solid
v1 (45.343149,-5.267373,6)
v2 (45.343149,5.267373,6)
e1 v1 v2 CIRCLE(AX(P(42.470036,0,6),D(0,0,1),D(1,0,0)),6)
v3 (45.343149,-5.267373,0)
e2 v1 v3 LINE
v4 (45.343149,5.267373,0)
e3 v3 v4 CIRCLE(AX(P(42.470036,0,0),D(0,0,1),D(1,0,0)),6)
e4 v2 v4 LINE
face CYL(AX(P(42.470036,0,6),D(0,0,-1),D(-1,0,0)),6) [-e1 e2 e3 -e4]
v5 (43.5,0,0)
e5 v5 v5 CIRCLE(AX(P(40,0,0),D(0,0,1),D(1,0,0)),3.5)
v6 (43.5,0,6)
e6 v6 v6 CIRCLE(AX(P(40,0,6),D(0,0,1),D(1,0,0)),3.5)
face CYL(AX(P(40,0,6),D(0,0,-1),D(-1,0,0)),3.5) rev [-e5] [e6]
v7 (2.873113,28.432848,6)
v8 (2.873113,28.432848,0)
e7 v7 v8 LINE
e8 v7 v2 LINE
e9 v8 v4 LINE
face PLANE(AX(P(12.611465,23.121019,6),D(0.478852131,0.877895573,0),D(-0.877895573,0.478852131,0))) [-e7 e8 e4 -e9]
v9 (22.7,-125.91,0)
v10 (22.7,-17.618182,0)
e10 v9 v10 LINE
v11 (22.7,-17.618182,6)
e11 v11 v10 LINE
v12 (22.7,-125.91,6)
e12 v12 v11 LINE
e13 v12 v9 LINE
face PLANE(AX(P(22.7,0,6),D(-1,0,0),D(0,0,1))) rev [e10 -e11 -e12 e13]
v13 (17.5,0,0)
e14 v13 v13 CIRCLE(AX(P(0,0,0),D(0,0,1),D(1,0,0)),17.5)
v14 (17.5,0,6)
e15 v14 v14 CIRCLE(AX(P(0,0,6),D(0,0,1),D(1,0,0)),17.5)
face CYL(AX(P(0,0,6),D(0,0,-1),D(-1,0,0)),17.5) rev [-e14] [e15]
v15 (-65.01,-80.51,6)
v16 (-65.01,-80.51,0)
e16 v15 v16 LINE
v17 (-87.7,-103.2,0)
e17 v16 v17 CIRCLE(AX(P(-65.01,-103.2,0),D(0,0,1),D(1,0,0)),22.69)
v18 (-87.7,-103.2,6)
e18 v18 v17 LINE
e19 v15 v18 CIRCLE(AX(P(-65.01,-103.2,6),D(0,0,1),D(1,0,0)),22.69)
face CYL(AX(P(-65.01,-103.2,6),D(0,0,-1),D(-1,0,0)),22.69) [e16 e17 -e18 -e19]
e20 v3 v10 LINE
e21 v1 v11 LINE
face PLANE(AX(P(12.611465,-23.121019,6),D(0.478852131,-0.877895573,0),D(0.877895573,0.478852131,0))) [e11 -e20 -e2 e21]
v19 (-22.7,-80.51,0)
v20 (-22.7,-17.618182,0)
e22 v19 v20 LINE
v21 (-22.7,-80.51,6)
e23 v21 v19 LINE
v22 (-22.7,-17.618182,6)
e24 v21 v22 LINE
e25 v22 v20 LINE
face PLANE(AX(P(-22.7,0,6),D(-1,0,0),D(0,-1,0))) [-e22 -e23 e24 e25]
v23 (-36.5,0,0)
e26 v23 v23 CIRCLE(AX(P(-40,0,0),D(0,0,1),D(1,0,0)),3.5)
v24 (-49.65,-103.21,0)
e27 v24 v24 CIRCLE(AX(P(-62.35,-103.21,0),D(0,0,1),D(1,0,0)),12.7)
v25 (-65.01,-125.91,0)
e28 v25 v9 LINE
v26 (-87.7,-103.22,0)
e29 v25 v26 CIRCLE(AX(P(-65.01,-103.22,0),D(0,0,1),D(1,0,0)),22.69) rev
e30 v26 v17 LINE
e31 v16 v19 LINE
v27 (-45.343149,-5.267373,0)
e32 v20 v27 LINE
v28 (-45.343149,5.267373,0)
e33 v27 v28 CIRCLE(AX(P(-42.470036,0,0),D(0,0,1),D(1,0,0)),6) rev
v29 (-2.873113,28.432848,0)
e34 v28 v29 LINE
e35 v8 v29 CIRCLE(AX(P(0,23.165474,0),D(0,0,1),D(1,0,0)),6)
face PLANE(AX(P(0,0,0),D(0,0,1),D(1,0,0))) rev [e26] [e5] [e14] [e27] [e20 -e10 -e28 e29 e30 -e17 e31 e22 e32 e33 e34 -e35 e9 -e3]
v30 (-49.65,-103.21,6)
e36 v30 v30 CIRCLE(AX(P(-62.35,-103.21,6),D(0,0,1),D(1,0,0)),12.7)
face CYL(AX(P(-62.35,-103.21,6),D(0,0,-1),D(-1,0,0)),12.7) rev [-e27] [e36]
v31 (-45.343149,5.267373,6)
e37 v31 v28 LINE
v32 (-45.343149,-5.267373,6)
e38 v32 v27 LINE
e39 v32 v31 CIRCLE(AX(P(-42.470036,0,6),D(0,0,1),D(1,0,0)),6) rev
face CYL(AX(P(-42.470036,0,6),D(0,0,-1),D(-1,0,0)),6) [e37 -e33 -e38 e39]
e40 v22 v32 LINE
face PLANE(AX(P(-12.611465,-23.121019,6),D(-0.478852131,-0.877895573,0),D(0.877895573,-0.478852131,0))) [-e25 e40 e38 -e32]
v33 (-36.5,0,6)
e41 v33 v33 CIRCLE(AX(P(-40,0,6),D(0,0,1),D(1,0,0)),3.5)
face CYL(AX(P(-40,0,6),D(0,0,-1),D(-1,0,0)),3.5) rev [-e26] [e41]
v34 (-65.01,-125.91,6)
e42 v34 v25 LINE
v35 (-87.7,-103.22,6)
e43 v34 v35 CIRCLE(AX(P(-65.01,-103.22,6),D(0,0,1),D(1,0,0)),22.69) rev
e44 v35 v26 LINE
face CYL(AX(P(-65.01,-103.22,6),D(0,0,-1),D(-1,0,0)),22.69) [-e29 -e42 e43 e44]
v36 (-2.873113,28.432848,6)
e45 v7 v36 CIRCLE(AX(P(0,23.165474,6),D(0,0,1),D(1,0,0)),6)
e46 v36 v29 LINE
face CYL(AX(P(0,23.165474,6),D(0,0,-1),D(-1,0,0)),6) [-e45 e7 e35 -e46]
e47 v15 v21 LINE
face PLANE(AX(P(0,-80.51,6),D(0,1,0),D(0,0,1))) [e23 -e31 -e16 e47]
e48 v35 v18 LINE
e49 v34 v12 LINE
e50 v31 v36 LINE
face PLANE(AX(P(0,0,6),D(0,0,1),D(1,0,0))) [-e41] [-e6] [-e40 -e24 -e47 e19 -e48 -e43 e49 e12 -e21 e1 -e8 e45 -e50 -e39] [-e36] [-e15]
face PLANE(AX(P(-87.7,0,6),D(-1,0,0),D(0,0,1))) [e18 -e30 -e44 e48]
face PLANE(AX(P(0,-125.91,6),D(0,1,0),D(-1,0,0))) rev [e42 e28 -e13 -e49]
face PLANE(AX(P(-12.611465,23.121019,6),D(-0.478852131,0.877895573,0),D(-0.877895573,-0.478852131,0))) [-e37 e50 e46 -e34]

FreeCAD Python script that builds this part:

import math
import FreeCAD as App
import Part
import Sketcher

doc = App.newDocument("Part")
body = doc.addObject("PartDesign::Body", "Body")

sketch1 = body.newObject("Sketcher::SketchObject", "Sketch")
sketch1.AttachmentSupport = (doc.getObject("XY_Plane"), [""])
sketch1.MapMode = "FlatFace"
sketch1.addGeometry([
    Part.LineSegment(App.Vector(-45.343149, -5.267373, 0), App.Vector(-22.7, -17.618182, 0)),
    Part.LineSegment(App.Vector(-22.7, -17.618182, 0), App.Vector(-22.7, -80.51, 0)),
    Part.LineSegment(App.Vector(-22.7, -80.51, 0), App.Vector(-65.01, -80.51, 0)),
    Part.ArcOfCircle(Part.Circle(App.Vector(-65.01, -103.2, 0), App.Vector(0, 0, 1), 22.69), math.radians(90), math.radians(180)),
    Part.LineSegment(App.Vector(-87.7, -103.2, 0), App.Vector(-87.7, -103.22, 0)),
    Part.ArcOfCircle(Part.Circle(App.Vector(-65.01, -103.22, 0), App.Vector(0, 0, 1), 22.69), math.radians(180), math.radians(270)),
    Part.LineSegment(App.Vector(-65.01, -125.91, 0), App.Vector(22.7, -125.91, 0)),
    Part.LineSegment(App.Vector(22.7, -125.91, 0), App.Vector(22.7, -17.618182, 0)),
    Part.LineSegment(App.Vector(22.7, -17.618182, 0), App.Vector(45.343149, -5.267373, 0)),
    Part.ArcOfCircle(Part.Circle(App.Vector(42.470036, 0, 0), App.Vector(0, 0, 1), 6), math.radians(-61.38954), math.radians(0)),
    Part.ArcOfCircle(Part.Circle(App.Vector(42.470036, 0, 0), App.Vector(0, 0, 1), 6), math.radians(0), math.radians(61.38954)),
    Part.LineSegment(App.Vector(45.343149, 5.267373, 0), App.Vector(2.873113, 28.432848, 0)),
    Part.ArcOfCircle(Part.Circle(App.Vector(0, 23.165474, 0), App.Vector(0, 0, 1), 6), math.radians(61.38954), math.radians(118.61046)),
    Part.LineSegment(App.Vector(-2.873113, 28.432848, 0), App.Vector(-45.343149, 5.267373, 0)),
    Part.ArcOfCircle(Part.Circle(App.Vector(-42.470036, 0, 0), App.Vector(0, 0, 1), 6), math.radians(118.61046), math.radians(241.38954)),
    Part.Circle(App.Vector(-62.35, -103.21, 0), App.Vector(0, 0, 1), 12.7),
    Part.Circle(App.Vector(-40, 0, 0), App.Vector(0, 0, 1), 3.5),
    Part.Circle(App.Vector(0, 0, 0), App.Vector(0, 0, 1), 17.5),
    Part.Circle(App.Vector(40, 0, 0), App.Vector(0, 0, 1), 3.5),
], False)
sketch1.addConstraint([
    Sketcher.Constraint("Coincident", 0, 2, 1, 1),
    Sketcher.Constraint("Coincident", 1, 2, 2, 1),
    Sketcher.Constraint("Tangent", 2, 2, 3, 1),
    Sketcher.Constraint("Tangent", 3, 2, 4, 1),
    Sketcher.Constraint("Coincident", 4, 2, 5, 1),
    Sketcher.Constraint("Tangent", 5, 2, 6, 1),
    Sketcher.Constraint("Coincident", 6, 2, 7, 1),
    Sketcher.Constraint("Coincident", 7, 2, 8, 1),
    Sketcher.Constraint("Tangent", 8, 2, 9, 1),
    Sketcher.Constraint("Tangent", 9, 2, 10, 1),
    Sketcher.Constraint("Tangent", 10, 2, 11, 1),
    Sketcher.Constraint("Tangent", 11, 2, 12, 1),
    Sketcher.Constraint("Tangent", 12, 2, 13, 1),
    Sketcher.Constraint("Tangent", 13, 2, 14, 1),
    Sketcher.Constraint("Tangent", 14, 2, 0, 1),
    Sketcher.Constraint("Vertical", 1),
    Sketcher.Constraint("Horizontal", 2),
    Sketcher.Constraint("Horizontal", 6),
    Sketcher.Constraint("Vertical", 7),
    Sketcher.Constraint("Coincident", 17, 3, -1, 1),
    Sketcher.Constraint("Equal", 3, 5),
    Sketcher.Constraint("Equal", 9, 10),
    Sketcher.Constraint("Equal", 10, 12),
    Sketcher.Constraint("Equal", 12, 14),
    Sketcher.Constraint("Equal", 16, 18),
    Sketcher.Constraint("Symmetric", 9, 3, 14, 3, -1, 1),
    Sketcher.Constraint("Symmetric", 16, 3, 18, 3, -1, 1),
    Sketcher.Constraint("Symmetric", 0, 2, 7, 2, -2),
    Sketcher.Constraint("Symmetric", 11, 2, 12, 2, -2),
    Sketcher.Constraint("PointOnObject", 16, 3, -1),
    Sketcher.Constraint("PointOnObject", 9, 2, -1),
    Sketcher.Constraint("Parallel", 0, 11),
    Sketcher.Constraint("Horizontal", 5, 3, 4, 2),
    Sketcher.Constraint("Diameter", 16, 7.0),
    Sketcher.Constraint("Diameter", 17, 35.0),
    Sketcher.Constraint("Radius", 9, 6.0),
    Sketcher.Constraint("Diameter", 15, 25.4),
    Sketcher.Constraint("Radius", 3, 22.69),
    Sketcher.Constraint("DistanceX", 16, 3, -1, 1, 40.0),
    Sketcher.Constraint("DistanceX", 3, 2, 1, 2, 65.0),
    Sketcher.Constraint("DistanceX", 6, 1, 6, 2, 87.71),
    Sketcher.Constraint("DistanceY", 4, 2, 4, 1, 0.02),
    Sketcher.Constraint("DistanceY", 3, 3, -1, 1, 103.2),
    Sketcher.Constraint("DistanceY", 3, 2, -1, 1, 103.2),
    Sketcher.Constraint("DistanceY", 15, 3, 1, 2, 22.7),
    Sketcher.Constraint("DistanceX", 15, 3, -1, 1, 62.35),
    Sketcher.Constraint("DistanceY", 1, 2, 1, 1, 62.891818),
    Sketcher.Constraint("Distance", 0, 25.792531),
])
pad1 = body.newObject("PartDesign::Pad", "Pad")
pad1.Profile = sketch1
pad1.Length = 6

doc.recompute()
